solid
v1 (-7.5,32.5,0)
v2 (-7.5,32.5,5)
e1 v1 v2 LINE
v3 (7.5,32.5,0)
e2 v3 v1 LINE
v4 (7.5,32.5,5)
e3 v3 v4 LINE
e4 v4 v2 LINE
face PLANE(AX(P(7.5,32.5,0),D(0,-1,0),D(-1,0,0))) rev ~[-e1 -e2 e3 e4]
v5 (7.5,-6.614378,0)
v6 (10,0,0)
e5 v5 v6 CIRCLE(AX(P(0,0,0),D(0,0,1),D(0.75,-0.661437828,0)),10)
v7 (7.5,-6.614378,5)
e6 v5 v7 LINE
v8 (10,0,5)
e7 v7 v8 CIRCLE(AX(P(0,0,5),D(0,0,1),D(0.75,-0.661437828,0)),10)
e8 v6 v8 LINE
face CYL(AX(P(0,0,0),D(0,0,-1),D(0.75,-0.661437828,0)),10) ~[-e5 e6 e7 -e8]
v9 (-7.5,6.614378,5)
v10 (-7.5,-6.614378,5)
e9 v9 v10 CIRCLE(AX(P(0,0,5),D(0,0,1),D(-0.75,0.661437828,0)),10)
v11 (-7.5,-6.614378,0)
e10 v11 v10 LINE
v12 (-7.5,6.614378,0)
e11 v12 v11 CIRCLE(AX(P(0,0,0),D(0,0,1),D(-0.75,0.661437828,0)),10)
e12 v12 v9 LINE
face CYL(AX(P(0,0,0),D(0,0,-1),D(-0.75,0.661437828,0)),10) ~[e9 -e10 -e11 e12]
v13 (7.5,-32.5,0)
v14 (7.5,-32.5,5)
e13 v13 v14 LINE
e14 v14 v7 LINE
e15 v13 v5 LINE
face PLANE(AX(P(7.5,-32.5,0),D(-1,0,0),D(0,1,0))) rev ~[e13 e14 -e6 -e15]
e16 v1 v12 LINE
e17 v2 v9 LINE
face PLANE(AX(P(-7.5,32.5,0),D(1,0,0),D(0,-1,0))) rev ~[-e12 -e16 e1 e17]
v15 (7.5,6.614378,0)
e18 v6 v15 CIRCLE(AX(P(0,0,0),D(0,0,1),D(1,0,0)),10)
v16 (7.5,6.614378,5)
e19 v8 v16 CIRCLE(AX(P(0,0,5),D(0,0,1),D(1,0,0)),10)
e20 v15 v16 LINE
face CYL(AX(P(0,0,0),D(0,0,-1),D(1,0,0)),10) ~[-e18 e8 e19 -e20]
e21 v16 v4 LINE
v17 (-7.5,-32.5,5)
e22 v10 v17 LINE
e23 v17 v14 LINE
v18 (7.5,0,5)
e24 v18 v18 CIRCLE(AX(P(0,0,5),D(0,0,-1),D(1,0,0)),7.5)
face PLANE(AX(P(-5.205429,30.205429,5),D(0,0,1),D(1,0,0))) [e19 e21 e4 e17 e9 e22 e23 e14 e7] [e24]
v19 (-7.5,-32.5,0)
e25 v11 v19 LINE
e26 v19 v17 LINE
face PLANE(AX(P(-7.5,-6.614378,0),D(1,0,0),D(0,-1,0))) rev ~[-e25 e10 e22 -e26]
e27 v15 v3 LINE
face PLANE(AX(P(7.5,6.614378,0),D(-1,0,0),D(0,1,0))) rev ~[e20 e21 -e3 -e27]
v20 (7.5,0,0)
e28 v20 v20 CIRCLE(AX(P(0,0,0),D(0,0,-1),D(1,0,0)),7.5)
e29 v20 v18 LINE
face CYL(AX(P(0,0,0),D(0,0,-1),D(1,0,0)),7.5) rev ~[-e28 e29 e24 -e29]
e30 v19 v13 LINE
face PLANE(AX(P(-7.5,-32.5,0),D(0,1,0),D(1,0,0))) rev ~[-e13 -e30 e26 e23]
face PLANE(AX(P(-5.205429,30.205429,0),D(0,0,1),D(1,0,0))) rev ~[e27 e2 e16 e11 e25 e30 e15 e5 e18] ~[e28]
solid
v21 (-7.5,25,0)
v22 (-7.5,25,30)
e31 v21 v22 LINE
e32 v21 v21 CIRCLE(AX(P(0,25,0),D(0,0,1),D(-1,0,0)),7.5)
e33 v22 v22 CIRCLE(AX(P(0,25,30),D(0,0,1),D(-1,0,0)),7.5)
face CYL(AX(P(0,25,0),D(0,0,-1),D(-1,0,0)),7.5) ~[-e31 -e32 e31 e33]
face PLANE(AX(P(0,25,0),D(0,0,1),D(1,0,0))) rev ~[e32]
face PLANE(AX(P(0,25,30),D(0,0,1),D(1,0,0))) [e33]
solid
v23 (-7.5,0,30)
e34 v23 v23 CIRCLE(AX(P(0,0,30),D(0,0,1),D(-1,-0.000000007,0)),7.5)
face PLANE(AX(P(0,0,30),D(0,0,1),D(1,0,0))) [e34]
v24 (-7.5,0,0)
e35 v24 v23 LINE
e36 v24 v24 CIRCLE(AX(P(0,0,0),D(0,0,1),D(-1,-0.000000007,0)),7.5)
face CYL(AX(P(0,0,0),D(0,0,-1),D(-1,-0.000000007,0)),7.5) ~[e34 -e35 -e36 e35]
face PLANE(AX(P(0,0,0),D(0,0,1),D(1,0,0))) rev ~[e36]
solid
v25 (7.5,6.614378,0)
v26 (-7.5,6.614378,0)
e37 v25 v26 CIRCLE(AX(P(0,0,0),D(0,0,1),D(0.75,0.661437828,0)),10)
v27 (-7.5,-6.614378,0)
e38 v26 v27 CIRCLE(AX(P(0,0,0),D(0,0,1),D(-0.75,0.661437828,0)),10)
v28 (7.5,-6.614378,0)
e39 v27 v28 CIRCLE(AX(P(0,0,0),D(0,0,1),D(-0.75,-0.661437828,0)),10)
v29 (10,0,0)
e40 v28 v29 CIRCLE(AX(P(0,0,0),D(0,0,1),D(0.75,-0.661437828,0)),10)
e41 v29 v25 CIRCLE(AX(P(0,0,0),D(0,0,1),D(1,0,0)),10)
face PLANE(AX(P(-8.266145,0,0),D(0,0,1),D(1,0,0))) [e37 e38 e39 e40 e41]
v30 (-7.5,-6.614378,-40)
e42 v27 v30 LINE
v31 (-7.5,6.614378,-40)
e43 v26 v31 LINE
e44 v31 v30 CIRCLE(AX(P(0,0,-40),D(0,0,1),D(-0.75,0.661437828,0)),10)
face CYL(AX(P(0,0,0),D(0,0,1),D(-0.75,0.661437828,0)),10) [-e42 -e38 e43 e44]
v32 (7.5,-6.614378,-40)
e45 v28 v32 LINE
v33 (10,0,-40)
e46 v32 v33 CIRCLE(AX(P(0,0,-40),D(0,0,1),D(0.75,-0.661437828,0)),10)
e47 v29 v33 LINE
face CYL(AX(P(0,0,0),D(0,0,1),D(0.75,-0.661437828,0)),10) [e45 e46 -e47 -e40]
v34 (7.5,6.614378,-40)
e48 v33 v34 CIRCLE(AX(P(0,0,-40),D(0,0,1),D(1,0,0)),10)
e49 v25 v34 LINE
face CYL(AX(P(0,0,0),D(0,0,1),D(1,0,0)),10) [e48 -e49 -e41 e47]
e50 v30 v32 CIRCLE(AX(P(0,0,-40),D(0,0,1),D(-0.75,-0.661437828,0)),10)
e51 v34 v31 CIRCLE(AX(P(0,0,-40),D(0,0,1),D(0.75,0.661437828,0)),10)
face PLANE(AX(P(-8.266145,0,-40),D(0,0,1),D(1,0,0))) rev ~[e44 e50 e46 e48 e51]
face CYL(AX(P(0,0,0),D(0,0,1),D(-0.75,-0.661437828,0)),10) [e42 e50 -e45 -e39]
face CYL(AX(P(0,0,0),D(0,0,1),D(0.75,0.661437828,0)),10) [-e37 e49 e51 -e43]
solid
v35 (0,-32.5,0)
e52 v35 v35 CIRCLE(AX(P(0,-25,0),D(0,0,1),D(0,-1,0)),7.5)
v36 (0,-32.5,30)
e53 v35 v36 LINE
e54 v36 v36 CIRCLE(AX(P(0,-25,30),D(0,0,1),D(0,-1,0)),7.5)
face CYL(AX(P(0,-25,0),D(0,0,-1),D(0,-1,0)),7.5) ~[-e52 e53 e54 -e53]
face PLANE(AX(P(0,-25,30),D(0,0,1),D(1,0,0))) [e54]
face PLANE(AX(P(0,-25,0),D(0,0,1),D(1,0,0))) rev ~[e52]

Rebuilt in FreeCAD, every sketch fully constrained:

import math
import FreeCAD as App
import Part
import Sketcher
from FreeCAD import Vector

doc = App.newDocument("Part")
body = doc.addObject("PartDesign::Body", "Body")

# Sketch on XY plane
sketch1 = body.newObject("Sketcher::SketchObject", "Sketch")
sketch1.AttachmentSupport = (doc.getObject("XY_Plane"), [""])
sketch1.MapMode = "FlatFace"
sketch1.addGeometry([
    Part.LineSegment(Vector(-8, 32, 0), Vector(-8, 7, 0)),  # 0
    Part.ArcOfCircle(Part.Circle(Vector(0, 0, 0), Vector(0, 0, 1), 10), math.radians(139), math.radians(221)),  # 1
    Part.LineSegment(Vector(-8, -7, 0), Vector(-8, -32, 0)),  # 2
    Part.LineSegment(Vector(-8, -32, 0), Vector(8, -32, 0)),  # 3
    Part.LineSegment(Vector(8, -32, 0), Vector(8, -7, 0)),  # 4
    Part.ArcOfCircle(Part.Circle(Vector(0, 0, 0), Vector(0, 0, 1), 10), math.radians(-41), math.radians(0)),  # 5
    Part.ArcOfCircle(Part.Circle(Vector(0, 0, 0), Vector(0, 0, 1), 10), math.radians(0), math.radians(41)),  # 6
    Part.LineSegment(Vector(8, 7, 0), Vector(8, 32, 0)),  # 7
    Part.LineSegment(Vector(8, 32, 0), Vector(-8, 32, 0)),  # 8
    Part.Circle(Vector(0, 0, 0), Vector(0, 0, 1), 8),  # 9
], False)
sketch1.addConstraint([
    Sketcher.Constraint("Coincident", 0, 2, 1, 1),
    Sketcher.Constraint("Coincident", 1, 2, 2, 1),
    Sketcher.Constraint("Coincident", 2, 2, 3, 1),
    Sketcher.Constraint("Coincident", 3, 2, 4, 1),
    Sketcher.Constraint("Coincident", 4, 2, 5, 1),
    Sketcher.Constraint("Tangent", 5, 2, 6, 1),
    Sketcher.Constraint("Coincident", 6, 2, 7, 1),
    Sketcher.Constraint("Coincident", 7, 2, 8, 1),
    Sketcher.Constraint("Coincident", 8, 2, 0, 1),
    Sketcher.Constraint("Vertical", 0),
    Sketcher.Constraint("Vertical", 2),
    Sketcher.Constraint("Horizontal", 3),
    Sketcher.Constraint("Vertical", 4),
    Sketcher.Constraint("Vertical", 7),
    Sketcher.Constraint("Horizontal", 8),
    Sketcher.Constraint("Coincident", 1, 3, -1, 1),
    Sketcher.Constraint("Coincident", 5, 3, -1, 1),
    Sketcher.Constraint("Coincident", 9, 3, -1, 1),
    Sketcher.Constraint("Equal", 1, 5),
    Sketcher.Constraint("Equal", 5, 6),
    Sketcher.Constraint("Symmetric", 2, 2, 7, 2, -1, 1),
    Sketcher.Constraint("PointOnObject", 5, 2, -1),
    Sketcher.Constraint("Horizontal", 1, 2, 4, 2),
    Sketcher.Constraint("Horizontal", 0, 2, 6, 2),
    Sketcher.Constraint("Diameter", 9, 15.0),
    Sketcher.Constraint("Radius", 1, 10.0),
    Sketcher.Constraint("DistanceX", 3, 1, 3, 2, 15.0),
    Sketcher.Constraint("DistanceY", 2, 2, -1, 1, 32.5),
])
pad1 = body.newObject("PartDesign::Pad", "Pad")
pad1.Profile = sketch1
pad1.Length = 5
body2 = doc.addObject("PartDesign::Body", "Body001")

# Sketch on XY plane
sketch2 = body2.newObject("Sketcher::SketchObject", "Sketch001")
sketch2.AttachmentSupport = (doc.getObject("XY_Plane001"), [""])
sketch2.MapMode = "FlatFace"
sketch2.addGeometry(Part.Circle(Vector(0, 0, 0), Vector(0, 0, 1), 8), False)
sketch2.addConstraint([
    Sketcher.Constraint("Coincident", 0, 3, -1, 1),
    Sketcher.Constraint("Diameter", 0, 15.0),
])
pad2 = body2.newObject("PartDesign::Pad", "Pad001")
pad2.Profile = sketch2
pad2.Length = 30
body3 = doc.addObject("PartDesign::Body", "Body002")

# Sketch on XY plane
sketch3 = body3.newObject("Sketcher::SketchObject", "Sketch002")
sketch3.AttachmentSupport = (doc.getObject("XY_Plane002"), [""])
sketch3.MapMode = "FlatFace"
sketch3.addGeometry(Part.Circle(Vector(0, -25, 0), Vector(0, 0, 1), 8), False)
sketch3.addConstraint([
    Sketcher.Constraint("PointOnObject", 0, 3, -2),
    Sketcher.Constraint("Diameter", 0, 15.0),
    Sketcher.Constraint("DistanceY", 0, 3, -1, 1, 25.0),
])
pad3 = body3.newObject("PartDesign::Pad", "Pad002")
pad3.Profile = sketch3
pad3.Length = 30
body4 = doc.addObject("PartDesign::Body", "Body003")

# Sketch on XY plane
sketch4 = body4.newObject("Sketcher::SketchObject", "Sketch003")
sketch4.AttachmentSupport = (doc.getObject("XY_Plane003"), [""])
sketch4.MapMode = "FlatFace"
sketch4.addGeometry(Part.Circle(Vector(0, 25, 0), Vector(0, 0, 1), 8), False)
sketch4.addConstraint([
    Sketcher.Constraint("PointOnObject", 0, 3, -2),
    Sketcher.Constraint("Diameter", 0, 15.0),
    Sketcher.Constraint("DistanceY", -1, 1, 0, 3, 25.0),
])
pad4 = body4.newObject("PartDesign::Pad", "Pad003")
pad4.Profile = sketch4
pad4.Length = 30
body5 = doc.addObject("PartDesign::Body", "Body004")

# Sketch on XY plane
sketch5 = body5.newObject("Sketcher::SketchObject", "Sketch004")
sketch5.AttachmentSupport = (doc.getObject("XY_Plane004"), [""])
sketch5.MapMode = "FlatFace"
sketch5.addGeometry([
    Part.ArcOfCircle(Part.Circle(Vector(0, 0, 0), Vector(0, 0, 1), 10), math.radians(139), math.radians(221)),  # 0
    Part.ArcOfCircle(Part.Circle(Vector(0, 0, 0), Vector(0, 0, 1), 10), math.radians(-139), math.radians(-41)),  # 1
    Part.ArcOfCircle(Part.Circle(Vector(0, 0, 0), Vector(0, 0, 1), 10), math.radians(-41), math.radians(0)),  # 2
    Part.ArcOfCircle(Part.Circle(Vector(0, 0, 0), Vector(0, 0, 1), 10), math.radians(0), math.radians(41)),  # 3
    Part.ArcOfCircle(Part.Circle(Vector(0, 0, 0), Vector(0, 0, 1), 10), math.radians(41), math.radians(139)),  # 4
], False)
sketch5.addConstraint([
    Sketcher.Constraint("Tangent", 0, 2, 1, 1),
    Sketcher.Constraint("Tangent", 1, 2, 2, 1),
    Sketcher.Constraint("Tangent", 2, 2, 3, 1),
    Sketcher.Constraint("Tangent", 3, 2, 4, 1),
    Sketcher.Constraint("Tangent", 4, 2, 0, 1),
    Sketcher.Constraint("Coincident", 0, 3, -1, 1),
    Sketcher.Constraint("Coincident", 2, 3, -1, 1),
    Sketcher.Constraint("PointOnObject", 2, 2, -1),
    Sketcher.Constraint("Horizontal", 0, 2, 1, 2),
    Sketcher.Constraint("Horizontal", 3, 2, 4, 2),
    Sketcher.Constraint("Vertical", 1, 2, 3, 2),
    Sketcher.Constraint("Radius", 0, 10.0),
    Sketcher.Constraint("DistanceX", 0, 2, -1, 1, 7.5),
])
pad5 = body5.newObject("PartDesign::Pad", "Pad004")
pad5.Profile = sketch5
pad5.Length = 40
pad5.Reversed = True

doc.recompute()
